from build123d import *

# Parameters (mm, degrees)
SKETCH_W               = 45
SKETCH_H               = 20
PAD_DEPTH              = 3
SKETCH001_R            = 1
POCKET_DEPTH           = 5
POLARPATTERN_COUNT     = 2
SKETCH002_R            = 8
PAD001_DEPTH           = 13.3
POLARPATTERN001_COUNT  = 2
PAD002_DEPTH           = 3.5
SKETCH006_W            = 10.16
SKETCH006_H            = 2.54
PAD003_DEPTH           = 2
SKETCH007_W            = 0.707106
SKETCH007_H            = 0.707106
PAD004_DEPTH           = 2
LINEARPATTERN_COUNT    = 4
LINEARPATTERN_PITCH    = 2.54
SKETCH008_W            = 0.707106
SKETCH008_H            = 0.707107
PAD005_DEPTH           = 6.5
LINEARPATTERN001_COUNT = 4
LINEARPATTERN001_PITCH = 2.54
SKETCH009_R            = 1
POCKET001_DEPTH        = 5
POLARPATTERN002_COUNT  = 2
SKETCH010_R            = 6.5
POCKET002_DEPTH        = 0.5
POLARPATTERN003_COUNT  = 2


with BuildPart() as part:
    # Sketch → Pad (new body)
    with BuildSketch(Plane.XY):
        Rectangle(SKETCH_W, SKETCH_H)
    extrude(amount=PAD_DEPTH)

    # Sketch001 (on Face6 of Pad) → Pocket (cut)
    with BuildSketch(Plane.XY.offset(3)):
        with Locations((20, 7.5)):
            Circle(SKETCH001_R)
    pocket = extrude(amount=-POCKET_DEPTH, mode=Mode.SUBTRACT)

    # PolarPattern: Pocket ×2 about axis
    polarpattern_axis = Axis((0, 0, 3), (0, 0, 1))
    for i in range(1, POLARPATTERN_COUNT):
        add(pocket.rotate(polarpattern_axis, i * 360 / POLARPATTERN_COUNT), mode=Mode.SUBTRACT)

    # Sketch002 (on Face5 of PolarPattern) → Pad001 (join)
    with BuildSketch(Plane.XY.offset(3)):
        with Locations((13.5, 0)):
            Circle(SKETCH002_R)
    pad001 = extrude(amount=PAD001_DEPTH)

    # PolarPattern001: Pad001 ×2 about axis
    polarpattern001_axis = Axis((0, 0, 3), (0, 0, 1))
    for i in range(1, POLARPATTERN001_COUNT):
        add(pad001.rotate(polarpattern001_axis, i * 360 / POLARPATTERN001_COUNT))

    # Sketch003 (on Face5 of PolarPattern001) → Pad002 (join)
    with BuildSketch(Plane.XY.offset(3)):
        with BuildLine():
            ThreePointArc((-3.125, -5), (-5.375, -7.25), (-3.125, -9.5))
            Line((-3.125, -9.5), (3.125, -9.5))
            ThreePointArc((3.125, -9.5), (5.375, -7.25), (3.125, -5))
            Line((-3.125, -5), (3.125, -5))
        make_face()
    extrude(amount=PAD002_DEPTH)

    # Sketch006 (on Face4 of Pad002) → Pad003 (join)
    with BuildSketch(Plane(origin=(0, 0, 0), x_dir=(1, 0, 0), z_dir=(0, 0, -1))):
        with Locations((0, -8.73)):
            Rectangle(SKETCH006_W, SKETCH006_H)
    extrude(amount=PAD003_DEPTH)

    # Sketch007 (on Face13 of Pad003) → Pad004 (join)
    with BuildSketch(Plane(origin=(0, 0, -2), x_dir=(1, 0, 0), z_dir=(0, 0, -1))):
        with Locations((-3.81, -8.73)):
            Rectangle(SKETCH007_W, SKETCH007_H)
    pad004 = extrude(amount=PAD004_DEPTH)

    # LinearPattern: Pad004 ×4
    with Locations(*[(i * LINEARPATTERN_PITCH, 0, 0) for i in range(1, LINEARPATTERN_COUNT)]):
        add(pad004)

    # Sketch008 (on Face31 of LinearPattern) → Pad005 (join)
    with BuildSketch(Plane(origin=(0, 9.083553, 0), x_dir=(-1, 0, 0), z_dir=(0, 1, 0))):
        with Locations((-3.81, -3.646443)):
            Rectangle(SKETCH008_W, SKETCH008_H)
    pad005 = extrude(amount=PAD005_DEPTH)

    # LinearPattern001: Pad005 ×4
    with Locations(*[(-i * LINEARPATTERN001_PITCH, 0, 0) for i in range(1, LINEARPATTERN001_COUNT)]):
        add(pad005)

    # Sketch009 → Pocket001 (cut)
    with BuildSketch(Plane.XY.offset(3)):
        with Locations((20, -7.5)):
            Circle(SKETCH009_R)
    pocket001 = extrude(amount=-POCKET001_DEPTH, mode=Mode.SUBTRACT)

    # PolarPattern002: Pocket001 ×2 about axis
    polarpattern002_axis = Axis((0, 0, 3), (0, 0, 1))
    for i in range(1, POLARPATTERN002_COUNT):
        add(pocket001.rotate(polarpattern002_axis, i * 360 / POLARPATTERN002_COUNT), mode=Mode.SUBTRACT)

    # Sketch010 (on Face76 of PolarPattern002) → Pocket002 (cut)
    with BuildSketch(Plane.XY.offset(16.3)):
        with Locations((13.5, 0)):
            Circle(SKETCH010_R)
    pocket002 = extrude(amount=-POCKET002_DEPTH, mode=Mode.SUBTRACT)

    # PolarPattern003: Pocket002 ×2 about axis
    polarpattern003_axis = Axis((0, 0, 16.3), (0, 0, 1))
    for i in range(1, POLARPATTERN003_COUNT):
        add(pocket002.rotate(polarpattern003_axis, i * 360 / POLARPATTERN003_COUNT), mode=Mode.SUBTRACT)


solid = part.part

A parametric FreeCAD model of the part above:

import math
import FreeCAD as App
import Part
import Sketcher
from FreeCAD import Vector
Q = App.Units.Quantity

doc = App.newDocument("Part")
body = doc.addObject("PartDesign::Body", "Body")

# Sketch on XY plane
sketch1 = doc.addObject("Sketcher::SketchObject", "Sketch")
body.addObject(sketch1)
sketch1.AttachmentSupport = (doc.XY_Plane, [""])
sketch1.MapMode = "FlatFace"
sketch1.addGeometry([
    Part.LineSegment(Vector(-22, 10, 0), Vector(-22, -10, 0)),
    Part.LineSegment(Vector(-22, -10, 0), Vector(22, -10, 0)),
    Part.LineSegment(Vector(22, -10, 0), Vector(22, 10, 0)),
    Part.LineSegment(Vector(22, 10, 0), Vector(-22, 10, 0)),
], False)
sketch1.addConstraint([
    Sketcher.Constraint("Coincident", 0, 2, 1, 1),
    Sketcher.Constraint("Coincident", 1, 2, 2, 1),
    Sketcher.Constraint("Coincident", 2, 2, 3, 1),
    Sketcher.Constraint("Coincident", 3, 2, 0, 1),
    Sketcher.Constraint("Vertical", 0),
    Sketcher.Constraint("Horizontal", 1),
    Sketcher.Constraint("Vertical", 2),
    Sketcher.Constraint("Horizontal", 3),
    Sketcher.Constraint("Symmetric", 0, 2, 2, 2, -1, 1),
    Sketcher.Constraint("DistanceX", 1, 1, 1, 2, Q("45 mm")),
    Sketcher.Constraint("DistanceY", 0, 2, 0, 1, Q("20 mm")),
])
pad1 = doc.addObject("PartDesign::Pad", "Pad")
body.addObject(pad1)
pad1.Profile = sketch1
pad1.Length = 3

# Sketch on XY plane
sketch2 = doc.addObject("Sketcher::SketchObject", "Sketch001")
body.addObject(sketch2)
sketch2.AttachmentSupport = (doc.XY_Plane, [""])
sketch2.MapMode = "FlatFace"
sketch2.AttachmentOffset = App.Placement(Vector(0, 0, 3), App.Rotation())
sketch2.addGeometry(Part.Circle(Vector(20, 7.5, 0), Vector(0, 0, 1), 1), False)
sketch2.addConstraint([
    Sketcher.Constraint("Diameter", 0, Q("2 mm")),
    Sketcher.Constraint("DistanceX", -1, 1, 0, 3, Q("20 mm")),
    Sketcher.Constraint("DistanceY", -1, 1, 0, 3, Q("7.5 mm")),
])
pocket1 = doc.addObject("PartDesign::Pocket", "Pocket")
body.addObject(pocket1)
pocket1.Profile = sketch2
pocket1.Length = 5
doc.recompute()

polarpattern = doc.addObject("PartDesign::PolarPattern", "PolarPattern")
body.addObject(polarpattern)
polarpattern.Originals = [pocket1]
polarpattern.Axis = (doc.Z_Axis, [""])
polarpattern.Angle = 360
polarpattern.Occurrences = 2
body.Tip = polarpattern

# Sketch on XY plane
sketch3 = doc.addObject("Sketcher::SketchObject", "Sketch002")
body.addObject(sketch3)
sketch3.AttachmentSupport = (doc.XY_Plane, [""])
sketch3.MapMode = "FlatFace"
sketch3.AttachmentOffset = App.Placement(Vector(0, 0, 3), App.Rotation())
sketch3.addGeometry(Part.Circle(Vector(14, 0, 0), Vector(0, 0, 1), 8), False)
sketch3.addConstraint([
    Sketcher.Constraint("PointOnObject", 0, 3, -1),
    Sketcher.Constraint("Diameter", 0, Q("16 mm")),
    Sketcher.Constraint("DistanceX", -1, 1, 0, 3, Q("13.5 mm")),
])
pad2 = doc.addObject("PartDesign::Pad", "Pad001")
body.addObject(pad2)
pad2.Profile = sketch3
pad2.Length = 13.3
doc.recompute()

polarpattern2 = doc.addObject("PartDesign::PolarPattern", "PolarPattern001")
body.addObject(polarpattern2)
polarpattern2.Originals = [pad2]
polarpattern2.Axis = (doc.Z_Axis, [""])
polarpattern2.Angle = 360
polarpattern2.Occurrences = 2
body.Tip = polarpattern2

# Sketch on XY plane
sketch4 = doc.addObject("Sketcher::SketchObject", "Sketch003")
body.addObject(sketch4)
sketch4.AttachmentSupport = (doc.XY_Plane, [""])
sketch4.MapMode = "FlatFace"
sketch4.AttachmentOffset = App.Placement(Vector(0, 0, 3), App.Rotation())
sketch4.addGeometry([
    Part.ArcOfCircle(Part.Circle(Vector(-3.1, -7.2, 0), Vector(0, 0, 1), 2.2), math.radians(90), math.radians(270)),
    Part.LineSegment(Vector(-3.1, -9.5, 0), Vector(3.1, -9.5, 0)),
    Part.ArcOfCircle(Part.Circle(Vector(3.1, -7.2, 0), Vector(0, 0, 1), 2.2), math.radians(-90), math.radians(90)),
    Part.LineSegment(Vector(3.1, -5, 0), Vector(-3.1, -5, 0)),
], False)
sketch4.addConstraint([
    Sketcher.Constraint("Tangent", 0, 2, 1, 1),
    Sketcher.Constraint("Tangent", 1, 2, 2, 1),
    Sketcher.Constraint("Tangent", 2, 2, 3, 1),
    Sketcher.Constraint("Tangent", 3, 2, 0, 1),
    Sketcher.Constraint("Horizontal", 1),
    Sketcher.Constraint("Horizontal", 3),
    Sketcher.Constraint("Radius", 0, Q("2.25 mm")),
    Sketcher.Constraint("DistanceY", 2, 2, -1, 1, Q("5 mm")),
    Sketcher.Constraint("DistanceX", 1, 1, 1, 2, Q("6.25 mm")),
    Sketcher.Constraint("DistanceX", 0, 3, -1, 1, Q("3.125 mm")),
])
pad3 = doc.addObject("PartDesign::Pad", "Pad002")
body.addObject(pad3)
pad3.Profile = sketch4
pad3.Length = 3.5

# Sketch on XY plane
sketch5 = doc.addObject("Sketcher::SketchObject", "Sketch004")
body.addObject(sketch5)
sketch5.AttachmentSupport = (doc.XY_Plane, [""])
sketch5.MapMode = "FlatFace"
sketch5.addGeometry([
    Part.LineSegment(Vector(-5.1, 7.5, 0), Vector(-5.1, 10, 0)),
    Part.LineSegment(Vector(-5.1, 10, 0), Vector(5.1, 10, 0)),
    Part.LineSegment(Vector(5.1, 10, 0), Vector(5.1, 7.5, 0)),
    Part.LineSegment(Vector(5.1, 7.5, 0), Vector(-5.1, 7.5, 0)),
], False)
sketch5.addConstraint([
    Sketcher.Constraint("Coincident", 0, 2, 1, 1),
    Sketcher.Constraint("Coincident", 1, 2, 2, 1),
    Sketcher.Constraint("Coincident", 2, 2, 3, 1),
    Sketcher.Constraint("Coincident", 3, 2, 0, 1),
    Sketcher.Constraint("Vertical", 0),
    Sketcher.Constraint("Horizontal", 1),
    Sketcher.Constraint("Vertical", 2),
    Sketcher.Constraint("Horizontal", 3),
    Sketcher.Constraint("DistanceY", -1, 1, 0, 2, Q("10 mm")),
    Sketcher.Constraint("DistanceX", 1, 1, 1, 2, Q("10.16 mm")),
    Sketcher.Constraint("DistanceY", 0, 1, 0, 2, Q("2.54 mm")),
    Sketcher.Constraint("DistanceX", 0, 2, -1, 1, Q("5.08 mm")),
])
pad4 = doc.addObject("PartDesign::Pad", "Pad003")
body.addObject(pad4)
pad4.Profile = sketch5
pad4.Length = 2
pad4.Reversed = True

# Sketch on XY plane
sketch6 = doc.addObject("Sketcher::SketchObject", "Sketch005")
body.addObject(sketch6)
sketch6.AttachmentSupport = (doc.XY_Plane, [""])
sketch6.MapMode = "FlatFace"
sketch6.AttachmentOffset = App.Placement(Vector(0, 0, -2), App.Rotation())
sketch6.addGeometry([
    Part.LineSegment(Vector(-4.2, 8.4, 0), Vector(-4.2, 9.1, 0)),
    Part.LineSegment(Vector(-4.2, 9.1, 0), Vector(-3.5, 9.1, 0)),
    Part.LineSegment(Vector(-3.5, 9.1, 0), Vector(-3.5, 8.4, 0)),
    Part.LineSegment(Vector(-3.5, 8.4, 0), Vector(-4.2, 8.4, 0)),
], False)
sketch6.addConstraint([
    Sketcher.Constraint("Coincident", 0, 2, 1, 1),
    Sketcher.Constraint("Coincident", 1, 2, 2, 1),
    Sketcher.Constraint("Coincident", 2, 2, 3, 1),
    Sketcher.Constraint("Coincident", 3, 2, 0, 1),
    Sketcher.Constraint("Vertical", 0),
    Sketcher.Constraint("Horizontal", 1),
    Sketcher.Constraint("Vertical", 2),
    Sketcher.Constraint("Horizontal", 3),
    Sketcher.Constraint("Equal", 3, 0),
    Sketcher.Constraint("DistanceX", 1, 1, 1, 2, Q("0.707106 mm")),
    Sketcher.Constraint("DistanceX", 0, 2, -1, 1, Q("4.163553 mm")),
    Sketcher.Constraint("DistanceY", -1, 1, 0, 2, Q("9.083553 mm")),
])
pad5 = doc.addObject("PartDesign::Pad", "Pad004")
body.addObject(pad5)
pad5.Profile = sketch6
pad5.Length = 2
pad5.Reversed = True
doc.recompute()

linearpattern = doc.addObject("PartDesign::LinearPattern", "LinearPattern")
body.addObject(linearpattern)
linearpattern.Originals = [pad5]
linearpattern.Direction = (doc.X_Axis, [""])
linearpattern.Mode = "offset"
linearpattern.Offset = 2.54
linearpattern.Occurrences = 4
body.Tip = linearpattern

# Sketch on XZ plane
sketch7 = doc.addObject("Sketcher::SketchObject", "Sketch006")
body.addObject(sketch7)
sketch7.AttachmentSupport = (doc.XZ_Plane, [""])
sketch7.MapMode = "FlatFace"
sketch7.AttachmentOffset = App.Placement(Vector(0, 0, -9.083553), App.Rotation())
sketch7.addGeometry([
    Part.LineSegment(Vector(4.2, -3.3, 0), Vector(4.2, -4, 0)),
    Part.LineSegment(Vector(4.2, -4, 0), Vector(3.5, -4, 0)),
    Part.LineSegment(Vector(3.5, -4, 0), Vector(3.5, -3.3, 0)),
    Part.LineSegment(Vector(3.5, -3.3, 0), Vector(4.2, -3.3, 0)),
], False)
sketch7.addConstraint([
    Sketcher.Constraint("Coincident", 0, 2, 1, 1),
    Sketcher.Constraint("Coincident", 1, 2, 2, 1),
    Sketcher.Constraint("Coincident", 2, 2, 3, 1),
    Sketcher.Constraint("Coincident", 3, 2, 0, 1),
    Sketcher.Constraint("Vertical", 0),
    Sketcher.Constraint("Horizontal", 1),
    Sketcher.Constraint("Vertical", 2),
    Sketcher.Constraint("Horizontal", 3),
    Sketcher.Constraint("Equal", 3, 0),
    Sketcher.Constraint("DistanceX", 1, 2, 1, 1, Q("0.707106 mm")),
    Sketcher.Constraint("DistanceY", 2, 2, -1, 1, Q("3.292889 mm")),
    Sketcher.Constraint("DistanceX", -1, 1, 0, 2, Q("4.163553 mm")),
])
pad6 = doc.addObject("PartDesign::Pad", "Pad005")
body.addObject(pad6)
pad6.Profile = sketch7
pad6.Length = 6.5
pad6.Reversed = True
doc.recompute()

linearpattern2 = doc.addObject("PartDesign::LinearPattern", "LinearPattern001")
body.addObject(linearpattern2)
linearpattern2.Originals = [pad6]
linearpattern2.Direction = (doc.X_Axis, [""])
linearpattern2.Mode = "offset"
linearpattern2.Offset = 2.54
linearpattern2.Occurrences = 4
linearpattern2.Reversed = True
body.Tip = linearpattern2

# Sketch on XY plane
sketch8 = doc.addObject("Sketcher::SketchObject", "Sketch007")
body.addObject(sketch8)
sketch8.AttachmentSupport = (doc.XY_Plane, [""])
sketch8.MapMode = "FlatFace"
sketch8.AttachmentOffset = App.Placement(Vector(0, 0, 3), App.Rotation())
sketch8.addGeometry(Part.Circle(Vector(20, -7.5, 0), Vector(0, 0, 1), 1), False)
sketch8.addConstraint([
    Sketcher.Constraint("Diameter", 0, Q("2 mm")),
    Sketcher.Constraint("DistanceX", -1, 1, 0, 3, Q("20 mm")),
    Sketcher.Constraint("DistanceY", 0, 3, -1, 1, Q("7.5 mm")),
])
pocket2 = doc.addObject("PartDesign::Pocket", "Pocket001")
body.addObject(pocket2)
pocket2.Profile = sketch8
pocket2.Length = 5
doc.recompute()

polarpattern3 = doc.addObject("PartDesign::PolarPattern", "PolarPattern002")
body.addObject(polarpattern3)
polarpattern3.Originals = [pocket2]
polarpattern3.Axis = (doc.Z_Axis, [""])
polarpattern3.Angle = 360
polarpattern3.Occurrences = 2
body.Tip = polarpattern3

# Sketch on XY plane
sketch9 = doc.addObject("Sketcher::SketchObject", "Sketch008")
body.addObject(sketch9)
sketch9.AttachmentSupport = (doc.XY_Plane, [""])
sketch9.MapMode = "FlatFace"
sketch9.AttachmentOffset = App.Placement(Vector(0, 0, 16.3), App.Rotation())
sketch9.addGeometry(Part.Circle(Vector(14, 0, 0), Vector(0, 0, 1), 6), False)
sketch9.addConstraint([
    Sketcher.Constraint("PointOnObject", 0, 3, -1),
    Sketcher.Constraint("Diameter", 0, Q("13 mm")),
    Sketcher.Constraint("DistanceX", -1, 1, 0, 3, Q("13.5 mm")),
])
pocket3 = doc.addObject("PartDesign::Pocket", "Pocket002")
body.addObject(pocket3)
pocket3.Profile = sketch9
pocket3.Length = 0.5
doc.recompute()

polarpattern4 = doc.addObject("PartDesign::PolarPattern", "PolarPattern003")
body.addObject(polarpattern4)
polarpattern4.Originals = [pocket3]
polarpattern4.Axis = (doc.Z_Axis, [""])
polarpattern4.Angle = 360
polarpattern4.Occurrences = 2
body.Tip = polarpattern4

doc.recompute()
